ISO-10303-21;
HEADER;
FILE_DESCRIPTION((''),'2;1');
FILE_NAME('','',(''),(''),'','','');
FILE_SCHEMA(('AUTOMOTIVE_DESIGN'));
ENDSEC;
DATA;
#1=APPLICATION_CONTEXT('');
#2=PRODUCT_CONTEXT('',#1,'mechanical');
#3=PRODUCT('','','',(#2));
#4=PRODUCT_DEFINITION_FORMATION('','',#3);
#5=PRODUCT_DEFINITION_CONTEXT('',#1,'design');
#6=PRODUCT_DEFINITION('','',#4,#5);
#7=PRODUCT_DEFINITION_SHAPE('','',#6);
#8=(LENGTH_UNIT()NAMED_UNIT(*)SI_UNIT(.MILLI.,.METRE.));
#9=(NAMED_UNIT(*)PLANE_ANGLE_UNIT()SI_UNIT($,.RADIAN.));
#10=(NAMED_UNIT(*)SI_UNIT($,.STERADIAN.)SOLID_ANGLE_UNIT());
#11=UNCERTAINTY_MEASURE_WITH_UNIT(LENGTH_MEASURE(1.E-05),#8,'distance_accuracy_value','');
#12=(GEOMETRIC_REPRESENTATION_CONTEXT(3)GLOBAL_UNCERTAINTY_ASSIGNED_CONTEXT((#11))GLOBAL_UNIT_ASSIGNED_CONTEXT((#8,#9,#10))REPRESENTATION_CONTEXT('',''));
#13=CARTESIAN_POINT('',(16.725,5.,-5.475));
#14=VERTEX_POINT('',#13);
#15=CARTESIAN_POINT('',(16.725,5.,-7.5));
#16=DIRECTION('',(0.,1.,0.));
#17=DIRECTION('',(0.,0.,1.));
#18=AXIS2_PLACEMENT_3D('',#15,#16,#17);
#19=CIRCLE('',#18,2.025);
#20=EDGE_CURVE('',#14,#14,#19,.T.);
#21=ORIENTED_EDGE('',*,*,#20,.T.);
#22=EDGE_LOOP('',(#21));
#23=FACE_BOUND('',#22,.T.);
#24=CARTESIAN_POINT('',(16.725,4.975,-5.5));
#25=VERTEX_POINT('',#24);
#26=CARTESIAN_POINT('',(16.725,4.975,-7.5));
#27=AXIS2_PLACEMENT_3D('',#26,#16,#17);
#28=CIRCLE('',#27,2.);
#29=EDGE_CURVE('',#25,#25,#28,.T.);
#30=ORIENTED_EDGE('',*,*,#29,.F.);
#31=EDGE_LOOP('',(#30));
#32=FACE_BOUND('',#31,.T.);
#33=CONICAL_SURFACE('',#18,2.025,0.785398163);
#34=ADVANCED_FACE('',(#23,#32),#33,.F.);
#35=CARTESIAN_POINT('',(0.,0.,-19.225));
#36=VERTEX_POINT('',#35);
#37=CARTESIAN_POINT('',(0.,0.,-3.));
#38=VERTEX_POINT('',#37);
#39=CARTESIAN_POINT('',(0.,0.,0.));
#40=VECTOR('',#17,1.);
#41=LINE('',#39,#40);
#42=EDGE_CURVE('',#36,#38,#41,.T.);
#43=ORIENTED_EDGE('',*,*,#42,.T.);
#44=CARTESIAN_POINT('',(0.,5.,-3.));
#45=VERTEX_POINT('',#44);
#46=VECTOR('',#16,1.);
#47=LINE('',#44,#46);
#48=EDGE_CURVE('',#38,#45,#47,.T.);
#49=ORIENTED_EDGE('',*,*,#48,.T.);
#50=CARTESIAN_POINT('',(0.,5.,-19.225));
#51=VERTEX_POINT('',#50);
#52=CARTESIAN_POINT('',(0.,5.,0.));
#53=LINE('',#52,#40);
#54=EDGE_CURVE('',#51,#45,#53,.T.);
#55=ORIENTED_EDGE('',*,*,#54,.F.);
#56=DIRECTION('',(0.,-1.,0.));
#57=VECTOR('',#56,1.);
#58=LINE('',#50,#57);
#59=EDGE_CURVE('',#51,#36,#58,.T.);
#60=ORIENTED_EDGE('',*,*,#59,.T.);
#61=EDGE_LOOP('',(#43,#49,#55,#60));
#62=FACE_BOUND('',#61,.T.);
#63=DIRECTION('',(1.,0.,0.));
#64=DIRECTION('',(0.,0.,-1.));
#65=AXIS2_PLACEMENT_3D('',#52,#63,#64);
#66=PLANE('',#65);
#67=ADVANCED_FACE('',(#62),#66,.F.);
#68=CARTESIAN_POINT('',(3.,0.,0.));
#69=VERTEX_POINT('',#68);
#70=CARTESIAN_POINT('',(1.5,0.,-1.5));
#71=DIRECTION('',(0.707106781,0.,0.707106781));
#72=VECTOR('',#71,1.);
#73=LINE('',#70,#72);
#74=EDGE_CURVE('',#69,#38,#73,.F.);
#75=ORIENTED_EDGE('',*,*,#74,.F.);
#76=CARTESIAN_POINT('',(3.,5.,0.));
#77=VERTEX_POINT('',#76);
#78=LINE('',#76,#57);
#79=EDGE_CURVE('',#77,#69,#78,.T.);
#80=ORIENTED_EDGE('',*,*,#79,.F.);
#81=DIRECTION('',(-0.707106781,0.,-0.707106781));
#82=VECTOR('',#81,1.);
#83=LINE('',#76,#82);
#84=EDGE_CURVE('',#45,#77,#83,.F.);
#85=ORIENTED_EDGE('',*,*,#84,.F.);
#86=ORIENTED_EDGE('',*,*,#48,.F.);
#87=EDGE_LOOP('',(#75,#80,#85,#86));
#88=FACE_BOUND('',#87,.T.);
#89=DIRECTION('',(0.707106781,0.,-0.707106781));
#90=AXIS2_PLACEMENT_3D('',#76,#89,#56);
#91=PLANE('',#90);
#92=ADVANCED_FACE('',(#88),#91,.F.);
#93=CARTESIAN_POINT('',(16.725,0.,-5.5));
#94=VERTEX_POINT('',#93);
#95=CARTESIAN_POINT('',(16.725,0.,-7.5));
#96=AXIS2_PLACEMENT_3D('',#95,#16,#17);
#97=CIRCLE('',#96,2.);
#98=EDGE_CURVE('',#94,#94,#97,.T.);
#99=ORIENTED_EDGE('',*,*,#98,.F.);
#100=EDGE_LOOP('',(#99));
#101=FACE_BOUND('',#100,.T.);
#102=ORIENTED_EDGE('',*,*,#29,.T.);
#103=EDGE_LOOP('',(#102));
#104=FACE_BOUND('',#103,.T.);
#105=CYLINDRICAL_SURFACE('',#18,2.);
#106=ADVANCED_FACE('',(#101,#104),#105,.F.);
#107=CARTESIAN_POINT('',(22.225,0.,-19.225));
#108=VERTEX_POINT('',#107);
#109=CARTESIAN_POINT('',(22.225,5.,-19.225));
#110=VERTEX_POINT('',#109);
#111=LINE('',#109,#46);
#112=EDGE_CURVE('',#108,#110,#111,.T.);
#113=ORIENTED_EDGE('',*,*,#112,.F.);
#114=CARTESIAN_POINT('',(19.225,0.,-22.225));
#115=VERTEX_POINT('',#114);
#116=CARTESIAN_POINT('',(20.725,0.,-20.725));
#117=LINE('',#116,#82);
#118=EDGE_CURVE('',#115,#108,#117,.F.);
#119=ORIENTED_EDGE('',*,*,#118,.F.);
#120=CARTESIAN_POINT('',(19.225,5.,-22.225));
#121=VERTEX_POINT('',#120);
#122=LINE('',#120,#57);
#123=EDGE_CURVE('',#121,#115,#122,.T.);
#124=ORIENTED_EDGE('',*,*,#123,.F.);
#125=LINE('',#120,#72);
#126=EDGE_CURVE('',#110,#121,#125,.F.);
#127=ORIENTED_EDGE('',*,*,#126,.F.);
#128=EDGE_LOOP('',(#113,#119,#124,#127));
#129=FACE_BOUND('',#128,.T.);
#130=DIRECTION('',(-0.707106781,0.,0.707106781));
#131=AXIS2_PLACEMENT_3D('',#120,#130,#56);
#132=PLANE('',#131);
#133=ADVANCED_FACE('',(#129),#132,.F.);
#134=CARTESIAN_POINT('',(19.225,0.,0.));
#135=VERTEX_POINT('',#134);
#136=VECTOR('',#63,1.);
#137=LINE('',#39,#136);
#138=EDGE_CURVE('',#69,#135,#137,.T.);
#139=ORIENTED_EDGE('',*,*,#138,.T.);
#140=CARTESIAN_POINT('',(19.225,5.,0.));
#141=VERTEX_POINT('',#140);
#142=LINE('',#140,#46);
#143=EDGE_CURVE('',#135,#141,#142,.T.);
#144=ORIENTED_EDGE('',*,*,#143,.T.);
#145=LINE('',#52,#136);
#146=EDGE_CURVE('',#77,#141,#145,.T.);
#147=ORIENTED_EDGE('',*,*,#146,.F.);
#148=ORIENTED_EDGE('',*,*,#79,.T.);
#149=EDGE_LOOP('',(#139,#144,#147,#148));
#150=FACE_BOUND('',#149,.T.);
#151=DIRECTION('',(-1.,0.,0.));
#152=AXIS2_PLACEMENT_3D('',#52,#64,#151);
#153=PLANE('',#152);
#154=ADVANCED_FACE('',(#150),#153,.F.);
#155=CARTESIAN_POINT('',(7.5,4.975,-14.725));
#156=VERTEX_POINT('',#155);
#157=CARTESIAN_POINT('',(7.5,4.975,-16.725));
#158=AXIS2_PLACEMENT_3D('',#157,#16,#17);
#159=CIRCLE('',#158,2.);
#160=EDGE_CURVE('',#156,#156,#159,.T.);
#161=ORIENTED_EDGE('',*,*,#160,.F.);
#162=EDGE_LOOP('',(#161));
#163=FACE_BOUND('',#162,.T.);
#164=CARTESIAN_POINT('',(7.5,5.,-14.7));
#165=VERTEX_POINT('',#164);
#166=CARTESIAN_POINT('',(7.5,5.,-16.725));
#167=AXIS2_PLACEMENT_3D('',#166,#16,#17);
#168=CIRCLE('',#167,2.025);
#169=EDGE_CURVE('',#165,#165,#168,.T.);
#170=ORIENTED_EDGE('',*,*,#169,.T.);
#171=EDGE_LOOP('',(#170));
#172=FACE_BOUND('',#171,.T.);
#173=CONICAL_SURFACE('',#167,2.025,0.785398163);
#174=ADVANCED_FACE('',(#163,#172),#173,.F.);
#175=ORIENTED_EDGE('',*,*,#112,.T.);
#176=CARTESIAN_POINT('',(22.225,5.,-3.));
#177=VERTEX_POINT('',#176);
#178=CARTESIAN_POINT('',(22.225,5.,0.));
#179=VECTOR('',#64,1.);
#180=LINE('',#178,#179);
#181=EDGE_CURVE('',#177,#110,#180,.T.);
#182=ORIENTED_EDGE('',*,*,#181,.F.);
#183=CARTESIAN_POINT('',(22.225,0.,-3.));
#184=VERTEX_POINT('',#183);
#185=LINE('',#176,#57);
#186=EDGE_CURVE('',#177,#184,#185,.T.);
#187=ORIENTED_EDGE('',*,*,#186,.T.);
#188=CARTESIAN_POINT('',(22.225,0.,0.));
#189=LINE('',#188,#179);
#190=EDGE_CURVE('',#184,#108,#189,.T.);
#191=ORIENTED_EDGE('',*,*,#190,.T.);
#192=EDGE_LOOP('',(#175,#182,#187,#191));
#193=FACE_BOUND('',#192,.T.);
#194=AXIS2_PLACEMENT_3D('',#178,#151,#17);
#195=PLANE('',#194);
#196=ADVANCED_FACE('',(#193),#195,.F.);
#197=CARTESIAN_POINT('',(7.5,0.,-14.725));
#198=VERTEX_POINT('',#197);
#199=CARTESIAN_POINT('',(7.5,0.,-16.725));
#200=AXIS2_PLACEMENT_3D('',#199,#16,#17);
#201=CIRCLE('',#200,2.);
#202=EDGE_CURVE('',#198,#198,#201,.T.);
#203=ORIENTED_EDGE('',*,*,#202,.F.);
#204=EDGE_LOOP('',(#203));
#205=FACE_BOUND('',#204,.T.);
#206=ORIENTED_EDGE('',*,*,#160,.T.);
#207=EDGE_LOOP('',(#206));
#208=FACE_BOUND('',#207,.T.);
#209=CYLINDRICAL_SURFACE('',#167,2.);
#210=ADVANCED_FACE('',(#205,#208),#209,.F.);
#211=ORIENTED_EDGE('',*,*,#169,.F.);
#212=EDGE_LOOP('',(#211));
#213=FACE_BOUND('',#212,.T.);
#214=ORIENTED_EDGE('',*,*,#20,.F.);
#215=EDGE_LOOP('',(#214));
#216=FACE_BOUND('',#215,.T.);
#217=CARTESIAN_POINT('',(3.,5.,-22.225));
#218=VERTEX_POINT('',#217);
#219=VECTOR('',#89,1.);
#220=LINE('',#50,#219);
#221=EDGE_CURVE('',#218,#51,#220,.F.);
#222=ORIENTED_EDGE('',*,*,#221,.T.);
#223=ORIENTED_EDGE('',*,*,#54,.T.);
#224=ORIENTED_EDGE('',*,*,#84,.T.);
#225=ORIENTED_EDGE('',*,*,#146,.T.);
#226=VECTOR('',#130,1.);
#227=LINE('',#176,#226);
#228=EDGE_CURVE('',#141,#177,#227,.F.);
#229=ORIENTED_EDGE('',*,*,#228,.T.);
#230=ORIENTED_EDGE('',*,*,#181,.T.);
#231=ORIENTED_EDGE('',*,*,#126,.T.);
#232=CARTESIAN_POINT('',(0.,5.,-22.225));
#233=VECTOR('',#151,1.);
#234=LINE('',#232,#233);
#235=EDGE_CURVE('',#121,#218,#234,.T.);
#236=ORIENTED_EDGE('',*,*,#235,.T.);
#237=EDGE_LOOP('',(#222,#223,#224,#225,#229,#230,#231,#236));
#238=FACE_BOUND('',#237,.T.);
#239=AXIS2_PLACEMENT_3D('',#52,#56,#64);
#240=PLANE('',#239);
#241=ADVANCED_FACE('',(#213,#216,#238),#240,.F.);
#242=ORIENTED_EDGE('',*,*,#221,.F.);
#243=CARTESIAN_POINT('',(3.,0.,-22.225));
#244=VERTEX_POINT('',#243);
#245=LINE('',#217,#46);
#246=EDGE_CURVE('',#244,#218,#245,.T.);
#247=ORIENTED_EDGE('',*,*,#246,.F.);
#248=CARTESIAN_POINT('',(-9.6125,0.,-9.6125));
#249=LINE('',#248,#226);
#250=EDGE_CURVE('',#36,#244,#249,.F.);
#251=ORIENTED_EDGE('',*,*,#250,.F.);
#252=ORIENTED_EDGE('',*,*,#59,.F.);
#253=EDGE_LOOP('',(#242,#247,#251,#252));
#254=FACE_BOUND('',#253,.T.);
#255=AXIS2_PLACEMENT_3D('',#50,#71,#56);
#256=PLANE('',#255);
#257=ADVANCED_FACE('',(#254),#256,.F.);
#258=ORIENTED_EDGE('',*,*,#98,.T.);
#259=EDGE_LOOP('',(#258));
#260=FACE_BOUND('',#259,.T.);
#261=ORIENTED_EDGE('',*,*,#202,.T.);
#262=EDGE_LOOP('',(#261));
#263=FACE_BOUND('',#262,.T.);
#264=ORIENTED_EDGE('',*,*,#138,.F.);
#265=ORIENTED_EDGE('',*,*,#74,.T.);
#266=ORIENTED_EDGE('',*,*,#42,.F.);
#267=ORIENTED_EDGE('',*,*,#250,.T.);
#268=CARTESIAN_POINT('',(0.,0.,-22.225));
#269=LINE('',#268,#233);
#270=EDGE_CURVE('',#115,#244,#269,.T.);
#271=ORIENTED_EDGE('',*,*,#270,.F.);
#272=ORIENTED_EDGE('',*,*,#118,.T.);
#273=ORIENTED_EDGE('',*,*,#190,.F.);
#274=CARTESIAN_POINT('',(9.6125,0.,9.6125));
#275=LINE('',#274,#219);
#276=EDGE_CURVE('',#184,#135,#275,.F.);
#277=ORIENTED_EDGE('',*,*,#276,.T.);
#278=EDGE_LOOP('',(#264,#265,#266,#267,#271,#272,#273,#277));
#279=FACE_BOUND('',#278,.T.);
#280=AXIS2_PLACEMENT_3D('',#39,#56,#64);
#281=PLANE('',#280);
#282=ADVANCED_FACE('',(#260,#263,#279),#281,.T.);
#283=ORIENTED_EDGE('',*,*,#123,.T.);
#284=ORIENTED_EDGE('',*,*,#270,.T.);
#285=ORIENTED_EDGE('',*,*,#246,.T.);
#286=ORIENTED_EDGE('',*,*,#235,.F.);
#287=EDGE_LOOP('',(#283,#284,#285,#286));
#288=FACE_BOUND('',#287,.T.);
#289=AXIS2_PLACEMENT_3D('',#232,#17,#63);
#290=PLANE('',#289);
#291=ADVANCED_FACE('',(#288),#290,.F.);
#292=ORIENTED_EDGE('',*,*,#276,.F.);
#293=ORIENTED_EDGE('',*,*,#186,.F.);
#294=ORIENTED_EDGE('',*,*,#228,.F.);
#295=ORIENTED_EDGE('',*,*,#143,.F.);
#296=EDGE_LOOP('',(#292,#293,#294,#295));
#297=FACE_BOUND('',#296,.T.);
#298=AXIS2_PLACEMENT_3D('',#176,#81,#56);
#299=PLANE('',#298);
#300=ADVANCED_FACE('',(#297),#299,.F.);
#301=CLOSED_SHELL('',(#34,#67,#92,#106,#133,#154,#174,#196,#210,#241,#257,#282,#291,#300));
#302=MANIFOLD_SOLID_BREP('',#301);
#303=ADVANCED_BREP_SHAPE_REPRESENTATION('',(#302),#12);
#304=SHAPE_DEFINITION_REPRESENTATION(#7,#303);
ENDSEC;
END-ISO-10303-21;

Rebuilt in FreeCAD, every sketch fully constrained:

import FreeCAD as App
import Part
import Sketcher

V = App.Vector
Q = App.Units.Quantity


def edges_at(feature, points):
    """Names of the edges that pass closest to the given points."""
    edges = feature.Shape.Edges
    near = lambda p: min(range(len(edges)), key=lambda i: edges[i].distToShape(Part.Vertex(*p))[0])
    return sorted({f"Edge{near(p) + 1}" for p in points})


def add_polygon(sketch, points):
    """Adds a closed chain of lines whose ends are joined by coincident constraints."""
    first, n = sketch.GeometryCount, len(points)
    for a, b in zip(points, points[1:] + points[:1]):
        sketch.addGeometry(Part.LineSegment(App.Vector(*a, 0), App.Vector(*b, 0)), False)
    for i in range(n):
        sketch.addConstraint(Sketcher.Constraint("Coincident", first + i, 2, first + (i + 1) % n, 1))

doc = App.newDocument("Part")
body = doc.addObject("PartDesign::Body", "Body")

# Sketch on XZ plane
sketch1 = body.newObject("Sketcher::SketchObject", "Sketch")
sketch1.AttachmentSupport = (doc.getObject("XZ_Plane"), [""])
sketch1.MapMode = "FlatFace"
add_polygon(sketch1, [(0, -22), (0, 0), (22, 0), (22, -22)])  # lines 0-3
sketch1.addConstraint([
    Sketcher.Constraint("Vertical", 0),
    Sketcher.Constraint("Horizontal", 1),
    Sketcher.Constraint("Vertical", 2),
    Sketcher.Constraint("Horizontal", 3),
    Sketcher.Constraint("Coincident", 0, 2, -1, 1),
    Sketcher.Constraint("Equal", 3, 0),
    Sketcher.Constraint("DistanceX", 1, 1, 1, 2, Q("22.225 mm")),
])
pad1 = body.newObject("PartDesign::Pad", "Pad")
pad1.Profile = sketch1
pad1.Length = 5
pad1.Reversed = True

# Sketch on XZ plane
sketch2 = body.newObject("Sketcher::SketchObject", "Sketch001")
sketch2.AttachmentSupport = (doc.getObject("XZ_Plane"), [""])
sketch2.MapMode = "FlatFace"
sketch2.AttachmentOffset = App.Placement(V(0, 0, -5), App.Rotation())
sketch2.addGeometry([
    Part.Circle(V(7.5, -16.7, 0), V(0, 0, 1), 2),
    Part.Circle(V(16.7, -7.5, 0), V(0, 0, 1), 2),
], False)
sketch2.addConstraint([
    Sketcher.Constraint("Equal", 0, 1),
    Sketcher.Constraint("Diameter", 0, Q("4 mm")),
    Sketcher.Constraint("DistanceX", -1, 1, 0, 3, Q("7.5 mm")),
    Sketcher.Constraint("DistanceY", 1, 3, -1, 1, Q("7.5 mm")),
    Sketcher.Constraint("DistanceY", 0, 3, -1, 1, Q("16.725 mm")),
    Sketcher.Constraint("DistanceX", -1, 1, 1, 3, Q("16.725 mm")),
])
doc.recompute()
hole = body.newObject("PartDesign::Hole", "Hole")
hole.Profile = sketch2
hole.ThreadType = "None"
hole.Diameter = 4
hole.DepthType = "ThroughAll"
hole.HoleCutType = "Countersink"
hole.HoleCutDiameter = 4.05
hole.HoleCutCountersinkAngle = 90
hole.Reversed = True
doc.recompute()

chamfer = body.newObject("PartDesign::Chamfer", "Chamfer")
chamfer.Base = (hole, edges_at(hole, [
    (0, 2.5, -22.225),
    (22.225, 2.5, -22.225),
    (22.225, 2.5, 0),
    (0, 2.5, 0),
]))
chamfer.Size = 3

doc.recompute()
